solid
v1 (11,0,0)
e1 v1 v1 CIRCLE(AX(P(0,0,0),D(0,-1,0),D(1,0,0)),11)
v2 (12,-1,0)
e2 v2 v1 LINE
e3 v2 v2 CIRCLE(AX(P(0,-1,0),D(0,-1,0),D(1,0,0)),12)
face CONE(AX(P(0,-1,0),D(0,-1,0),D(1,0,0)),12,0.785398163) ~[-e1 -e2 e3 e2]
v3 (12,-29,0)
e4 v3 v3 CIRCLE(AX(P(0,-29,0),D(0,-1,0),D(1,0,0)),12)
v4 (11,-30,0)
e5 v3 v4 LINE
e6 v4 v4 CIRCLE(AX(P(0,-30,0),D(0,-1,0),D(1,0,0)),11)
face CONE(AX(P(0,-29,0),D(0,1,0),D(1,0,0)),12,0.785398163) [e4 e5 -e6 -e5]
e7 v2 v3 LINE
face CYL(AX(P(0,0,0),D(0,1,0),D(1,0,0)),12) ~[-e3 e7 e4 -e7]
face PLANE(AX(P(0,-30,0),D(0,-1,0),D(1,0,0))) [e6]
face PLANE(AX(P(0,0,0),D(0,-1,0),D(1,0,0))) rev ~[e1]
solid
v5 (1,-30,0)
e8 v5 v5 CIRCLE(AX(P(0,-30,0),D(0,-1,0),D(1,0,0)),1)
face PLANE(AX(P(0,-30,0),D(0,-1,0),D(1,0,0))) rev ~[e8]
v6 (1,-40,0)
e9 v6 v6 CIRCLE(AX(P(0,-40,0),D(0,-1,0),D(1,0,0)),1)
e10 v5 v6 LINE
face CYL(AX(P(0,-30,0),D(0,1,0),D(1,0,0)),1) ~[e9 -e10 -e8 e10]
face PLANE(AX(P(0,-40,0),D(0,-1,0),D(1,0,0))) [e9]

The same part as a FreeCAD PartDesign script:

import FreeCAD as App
import Part
import Sketcher
from FreeCAD import Vector


def edges_at(feature, points):
    """Names of the edges that pass closest to the given points."""
    edges = feature.Shape.Edges
    near = lambda p: min(range(len(edges)), key=lambda i: edges[i].distToShape(Part.Vertex(*p))[0])
    return sorted({f"Edge{near(p) + 1}" for p in points})

doc = App.newDocument("Part")
params = doc.addObject("Spreadsheet::Sheet", "Params")
for row, (alias, value) in enumerate([
    ("sketch1_diameter", "24 mm"),
    ("pad1_length", "30 mm"),
    ("chamfer_size", "1 mm"),
    ("sketch2_diameter", "2 mm"),
    ("pad2_length", "10 mm"),
], start=1):
    params.set(f"A{row}", alias)
    params.set(f"B{row}", "=" + value)
    params.setAlias(f"B{row}", alias)

body = doc.addObject("PartDesign::Body", "Body")

sketch1 = body.newObject("Sketcher::SketchObject", "Sketch")
sketch1.AttachmentSupport = (doc.getObject("XZ_Plane"), [""])
sketch1.MapMode = "FlatFace"
sketch1.addGeometry(Part.Circle(Vector(0, 0, 0), Vector(0, 0, 1), 12), False)
sketch1.addConstraint(Sketcher.Constraint("Coincident", 0, 3, -1, 1))
sketch1.addConstraint(Sketcher.Constraint("Diameter", 0, 24.0))
sketch1.setExpression("Constraints[1]", "Params.sketch1_diameter")
pad1 = body.newObject("PartDesign::Pad", "Pad")
pad1.Profile = sketch1
pad1.setExpression("Length", "Params.pad1_length")
doc.recompute()

chamfer = body.newObject("PartDesign::Chamfer", "Chamfer")
chamfer.Base = (pad1, edges_at(pad1, [(-12, -30, 0), (-12, 0, 0)]))
chamfer.setExpression("Size", "Params.chamfer_size")
body2 = doc.addObject("PartDesign::Body", "Body001")

sketch2 = body2.newObject("Sketcher::SketchObject", "Sketch001")
sketch2.AttachmentSupport = (doc.getObject("XZ_Plane001"), [""])
sketch2.MapMode = "FlatFace"
sketch2.AttachmentOffset = App.Placement(Vector(0, 0, 30), App.Rotation())
sketch2.addGeometry(Part.Circle(Vector(0, 0, 0), Vector(0, 0, 1), 1), False)
sketch2.addConstraint(Sketcher.Constraint("Coincident", 0, 3, -1, 1))
sketch2.addConstraint(Sketcher.Constraint("Diameter", 0, 2.0))
sketch2.setExpression("Constraints[1]", "Params.sketch2_diameter")
pad2 = body2.newObject("PartDesign::Pad", "Pad001")
pad2.Profile = sketch2
pad2.setExpression("Length", "Params.pad2_length")

doc.recompute()
